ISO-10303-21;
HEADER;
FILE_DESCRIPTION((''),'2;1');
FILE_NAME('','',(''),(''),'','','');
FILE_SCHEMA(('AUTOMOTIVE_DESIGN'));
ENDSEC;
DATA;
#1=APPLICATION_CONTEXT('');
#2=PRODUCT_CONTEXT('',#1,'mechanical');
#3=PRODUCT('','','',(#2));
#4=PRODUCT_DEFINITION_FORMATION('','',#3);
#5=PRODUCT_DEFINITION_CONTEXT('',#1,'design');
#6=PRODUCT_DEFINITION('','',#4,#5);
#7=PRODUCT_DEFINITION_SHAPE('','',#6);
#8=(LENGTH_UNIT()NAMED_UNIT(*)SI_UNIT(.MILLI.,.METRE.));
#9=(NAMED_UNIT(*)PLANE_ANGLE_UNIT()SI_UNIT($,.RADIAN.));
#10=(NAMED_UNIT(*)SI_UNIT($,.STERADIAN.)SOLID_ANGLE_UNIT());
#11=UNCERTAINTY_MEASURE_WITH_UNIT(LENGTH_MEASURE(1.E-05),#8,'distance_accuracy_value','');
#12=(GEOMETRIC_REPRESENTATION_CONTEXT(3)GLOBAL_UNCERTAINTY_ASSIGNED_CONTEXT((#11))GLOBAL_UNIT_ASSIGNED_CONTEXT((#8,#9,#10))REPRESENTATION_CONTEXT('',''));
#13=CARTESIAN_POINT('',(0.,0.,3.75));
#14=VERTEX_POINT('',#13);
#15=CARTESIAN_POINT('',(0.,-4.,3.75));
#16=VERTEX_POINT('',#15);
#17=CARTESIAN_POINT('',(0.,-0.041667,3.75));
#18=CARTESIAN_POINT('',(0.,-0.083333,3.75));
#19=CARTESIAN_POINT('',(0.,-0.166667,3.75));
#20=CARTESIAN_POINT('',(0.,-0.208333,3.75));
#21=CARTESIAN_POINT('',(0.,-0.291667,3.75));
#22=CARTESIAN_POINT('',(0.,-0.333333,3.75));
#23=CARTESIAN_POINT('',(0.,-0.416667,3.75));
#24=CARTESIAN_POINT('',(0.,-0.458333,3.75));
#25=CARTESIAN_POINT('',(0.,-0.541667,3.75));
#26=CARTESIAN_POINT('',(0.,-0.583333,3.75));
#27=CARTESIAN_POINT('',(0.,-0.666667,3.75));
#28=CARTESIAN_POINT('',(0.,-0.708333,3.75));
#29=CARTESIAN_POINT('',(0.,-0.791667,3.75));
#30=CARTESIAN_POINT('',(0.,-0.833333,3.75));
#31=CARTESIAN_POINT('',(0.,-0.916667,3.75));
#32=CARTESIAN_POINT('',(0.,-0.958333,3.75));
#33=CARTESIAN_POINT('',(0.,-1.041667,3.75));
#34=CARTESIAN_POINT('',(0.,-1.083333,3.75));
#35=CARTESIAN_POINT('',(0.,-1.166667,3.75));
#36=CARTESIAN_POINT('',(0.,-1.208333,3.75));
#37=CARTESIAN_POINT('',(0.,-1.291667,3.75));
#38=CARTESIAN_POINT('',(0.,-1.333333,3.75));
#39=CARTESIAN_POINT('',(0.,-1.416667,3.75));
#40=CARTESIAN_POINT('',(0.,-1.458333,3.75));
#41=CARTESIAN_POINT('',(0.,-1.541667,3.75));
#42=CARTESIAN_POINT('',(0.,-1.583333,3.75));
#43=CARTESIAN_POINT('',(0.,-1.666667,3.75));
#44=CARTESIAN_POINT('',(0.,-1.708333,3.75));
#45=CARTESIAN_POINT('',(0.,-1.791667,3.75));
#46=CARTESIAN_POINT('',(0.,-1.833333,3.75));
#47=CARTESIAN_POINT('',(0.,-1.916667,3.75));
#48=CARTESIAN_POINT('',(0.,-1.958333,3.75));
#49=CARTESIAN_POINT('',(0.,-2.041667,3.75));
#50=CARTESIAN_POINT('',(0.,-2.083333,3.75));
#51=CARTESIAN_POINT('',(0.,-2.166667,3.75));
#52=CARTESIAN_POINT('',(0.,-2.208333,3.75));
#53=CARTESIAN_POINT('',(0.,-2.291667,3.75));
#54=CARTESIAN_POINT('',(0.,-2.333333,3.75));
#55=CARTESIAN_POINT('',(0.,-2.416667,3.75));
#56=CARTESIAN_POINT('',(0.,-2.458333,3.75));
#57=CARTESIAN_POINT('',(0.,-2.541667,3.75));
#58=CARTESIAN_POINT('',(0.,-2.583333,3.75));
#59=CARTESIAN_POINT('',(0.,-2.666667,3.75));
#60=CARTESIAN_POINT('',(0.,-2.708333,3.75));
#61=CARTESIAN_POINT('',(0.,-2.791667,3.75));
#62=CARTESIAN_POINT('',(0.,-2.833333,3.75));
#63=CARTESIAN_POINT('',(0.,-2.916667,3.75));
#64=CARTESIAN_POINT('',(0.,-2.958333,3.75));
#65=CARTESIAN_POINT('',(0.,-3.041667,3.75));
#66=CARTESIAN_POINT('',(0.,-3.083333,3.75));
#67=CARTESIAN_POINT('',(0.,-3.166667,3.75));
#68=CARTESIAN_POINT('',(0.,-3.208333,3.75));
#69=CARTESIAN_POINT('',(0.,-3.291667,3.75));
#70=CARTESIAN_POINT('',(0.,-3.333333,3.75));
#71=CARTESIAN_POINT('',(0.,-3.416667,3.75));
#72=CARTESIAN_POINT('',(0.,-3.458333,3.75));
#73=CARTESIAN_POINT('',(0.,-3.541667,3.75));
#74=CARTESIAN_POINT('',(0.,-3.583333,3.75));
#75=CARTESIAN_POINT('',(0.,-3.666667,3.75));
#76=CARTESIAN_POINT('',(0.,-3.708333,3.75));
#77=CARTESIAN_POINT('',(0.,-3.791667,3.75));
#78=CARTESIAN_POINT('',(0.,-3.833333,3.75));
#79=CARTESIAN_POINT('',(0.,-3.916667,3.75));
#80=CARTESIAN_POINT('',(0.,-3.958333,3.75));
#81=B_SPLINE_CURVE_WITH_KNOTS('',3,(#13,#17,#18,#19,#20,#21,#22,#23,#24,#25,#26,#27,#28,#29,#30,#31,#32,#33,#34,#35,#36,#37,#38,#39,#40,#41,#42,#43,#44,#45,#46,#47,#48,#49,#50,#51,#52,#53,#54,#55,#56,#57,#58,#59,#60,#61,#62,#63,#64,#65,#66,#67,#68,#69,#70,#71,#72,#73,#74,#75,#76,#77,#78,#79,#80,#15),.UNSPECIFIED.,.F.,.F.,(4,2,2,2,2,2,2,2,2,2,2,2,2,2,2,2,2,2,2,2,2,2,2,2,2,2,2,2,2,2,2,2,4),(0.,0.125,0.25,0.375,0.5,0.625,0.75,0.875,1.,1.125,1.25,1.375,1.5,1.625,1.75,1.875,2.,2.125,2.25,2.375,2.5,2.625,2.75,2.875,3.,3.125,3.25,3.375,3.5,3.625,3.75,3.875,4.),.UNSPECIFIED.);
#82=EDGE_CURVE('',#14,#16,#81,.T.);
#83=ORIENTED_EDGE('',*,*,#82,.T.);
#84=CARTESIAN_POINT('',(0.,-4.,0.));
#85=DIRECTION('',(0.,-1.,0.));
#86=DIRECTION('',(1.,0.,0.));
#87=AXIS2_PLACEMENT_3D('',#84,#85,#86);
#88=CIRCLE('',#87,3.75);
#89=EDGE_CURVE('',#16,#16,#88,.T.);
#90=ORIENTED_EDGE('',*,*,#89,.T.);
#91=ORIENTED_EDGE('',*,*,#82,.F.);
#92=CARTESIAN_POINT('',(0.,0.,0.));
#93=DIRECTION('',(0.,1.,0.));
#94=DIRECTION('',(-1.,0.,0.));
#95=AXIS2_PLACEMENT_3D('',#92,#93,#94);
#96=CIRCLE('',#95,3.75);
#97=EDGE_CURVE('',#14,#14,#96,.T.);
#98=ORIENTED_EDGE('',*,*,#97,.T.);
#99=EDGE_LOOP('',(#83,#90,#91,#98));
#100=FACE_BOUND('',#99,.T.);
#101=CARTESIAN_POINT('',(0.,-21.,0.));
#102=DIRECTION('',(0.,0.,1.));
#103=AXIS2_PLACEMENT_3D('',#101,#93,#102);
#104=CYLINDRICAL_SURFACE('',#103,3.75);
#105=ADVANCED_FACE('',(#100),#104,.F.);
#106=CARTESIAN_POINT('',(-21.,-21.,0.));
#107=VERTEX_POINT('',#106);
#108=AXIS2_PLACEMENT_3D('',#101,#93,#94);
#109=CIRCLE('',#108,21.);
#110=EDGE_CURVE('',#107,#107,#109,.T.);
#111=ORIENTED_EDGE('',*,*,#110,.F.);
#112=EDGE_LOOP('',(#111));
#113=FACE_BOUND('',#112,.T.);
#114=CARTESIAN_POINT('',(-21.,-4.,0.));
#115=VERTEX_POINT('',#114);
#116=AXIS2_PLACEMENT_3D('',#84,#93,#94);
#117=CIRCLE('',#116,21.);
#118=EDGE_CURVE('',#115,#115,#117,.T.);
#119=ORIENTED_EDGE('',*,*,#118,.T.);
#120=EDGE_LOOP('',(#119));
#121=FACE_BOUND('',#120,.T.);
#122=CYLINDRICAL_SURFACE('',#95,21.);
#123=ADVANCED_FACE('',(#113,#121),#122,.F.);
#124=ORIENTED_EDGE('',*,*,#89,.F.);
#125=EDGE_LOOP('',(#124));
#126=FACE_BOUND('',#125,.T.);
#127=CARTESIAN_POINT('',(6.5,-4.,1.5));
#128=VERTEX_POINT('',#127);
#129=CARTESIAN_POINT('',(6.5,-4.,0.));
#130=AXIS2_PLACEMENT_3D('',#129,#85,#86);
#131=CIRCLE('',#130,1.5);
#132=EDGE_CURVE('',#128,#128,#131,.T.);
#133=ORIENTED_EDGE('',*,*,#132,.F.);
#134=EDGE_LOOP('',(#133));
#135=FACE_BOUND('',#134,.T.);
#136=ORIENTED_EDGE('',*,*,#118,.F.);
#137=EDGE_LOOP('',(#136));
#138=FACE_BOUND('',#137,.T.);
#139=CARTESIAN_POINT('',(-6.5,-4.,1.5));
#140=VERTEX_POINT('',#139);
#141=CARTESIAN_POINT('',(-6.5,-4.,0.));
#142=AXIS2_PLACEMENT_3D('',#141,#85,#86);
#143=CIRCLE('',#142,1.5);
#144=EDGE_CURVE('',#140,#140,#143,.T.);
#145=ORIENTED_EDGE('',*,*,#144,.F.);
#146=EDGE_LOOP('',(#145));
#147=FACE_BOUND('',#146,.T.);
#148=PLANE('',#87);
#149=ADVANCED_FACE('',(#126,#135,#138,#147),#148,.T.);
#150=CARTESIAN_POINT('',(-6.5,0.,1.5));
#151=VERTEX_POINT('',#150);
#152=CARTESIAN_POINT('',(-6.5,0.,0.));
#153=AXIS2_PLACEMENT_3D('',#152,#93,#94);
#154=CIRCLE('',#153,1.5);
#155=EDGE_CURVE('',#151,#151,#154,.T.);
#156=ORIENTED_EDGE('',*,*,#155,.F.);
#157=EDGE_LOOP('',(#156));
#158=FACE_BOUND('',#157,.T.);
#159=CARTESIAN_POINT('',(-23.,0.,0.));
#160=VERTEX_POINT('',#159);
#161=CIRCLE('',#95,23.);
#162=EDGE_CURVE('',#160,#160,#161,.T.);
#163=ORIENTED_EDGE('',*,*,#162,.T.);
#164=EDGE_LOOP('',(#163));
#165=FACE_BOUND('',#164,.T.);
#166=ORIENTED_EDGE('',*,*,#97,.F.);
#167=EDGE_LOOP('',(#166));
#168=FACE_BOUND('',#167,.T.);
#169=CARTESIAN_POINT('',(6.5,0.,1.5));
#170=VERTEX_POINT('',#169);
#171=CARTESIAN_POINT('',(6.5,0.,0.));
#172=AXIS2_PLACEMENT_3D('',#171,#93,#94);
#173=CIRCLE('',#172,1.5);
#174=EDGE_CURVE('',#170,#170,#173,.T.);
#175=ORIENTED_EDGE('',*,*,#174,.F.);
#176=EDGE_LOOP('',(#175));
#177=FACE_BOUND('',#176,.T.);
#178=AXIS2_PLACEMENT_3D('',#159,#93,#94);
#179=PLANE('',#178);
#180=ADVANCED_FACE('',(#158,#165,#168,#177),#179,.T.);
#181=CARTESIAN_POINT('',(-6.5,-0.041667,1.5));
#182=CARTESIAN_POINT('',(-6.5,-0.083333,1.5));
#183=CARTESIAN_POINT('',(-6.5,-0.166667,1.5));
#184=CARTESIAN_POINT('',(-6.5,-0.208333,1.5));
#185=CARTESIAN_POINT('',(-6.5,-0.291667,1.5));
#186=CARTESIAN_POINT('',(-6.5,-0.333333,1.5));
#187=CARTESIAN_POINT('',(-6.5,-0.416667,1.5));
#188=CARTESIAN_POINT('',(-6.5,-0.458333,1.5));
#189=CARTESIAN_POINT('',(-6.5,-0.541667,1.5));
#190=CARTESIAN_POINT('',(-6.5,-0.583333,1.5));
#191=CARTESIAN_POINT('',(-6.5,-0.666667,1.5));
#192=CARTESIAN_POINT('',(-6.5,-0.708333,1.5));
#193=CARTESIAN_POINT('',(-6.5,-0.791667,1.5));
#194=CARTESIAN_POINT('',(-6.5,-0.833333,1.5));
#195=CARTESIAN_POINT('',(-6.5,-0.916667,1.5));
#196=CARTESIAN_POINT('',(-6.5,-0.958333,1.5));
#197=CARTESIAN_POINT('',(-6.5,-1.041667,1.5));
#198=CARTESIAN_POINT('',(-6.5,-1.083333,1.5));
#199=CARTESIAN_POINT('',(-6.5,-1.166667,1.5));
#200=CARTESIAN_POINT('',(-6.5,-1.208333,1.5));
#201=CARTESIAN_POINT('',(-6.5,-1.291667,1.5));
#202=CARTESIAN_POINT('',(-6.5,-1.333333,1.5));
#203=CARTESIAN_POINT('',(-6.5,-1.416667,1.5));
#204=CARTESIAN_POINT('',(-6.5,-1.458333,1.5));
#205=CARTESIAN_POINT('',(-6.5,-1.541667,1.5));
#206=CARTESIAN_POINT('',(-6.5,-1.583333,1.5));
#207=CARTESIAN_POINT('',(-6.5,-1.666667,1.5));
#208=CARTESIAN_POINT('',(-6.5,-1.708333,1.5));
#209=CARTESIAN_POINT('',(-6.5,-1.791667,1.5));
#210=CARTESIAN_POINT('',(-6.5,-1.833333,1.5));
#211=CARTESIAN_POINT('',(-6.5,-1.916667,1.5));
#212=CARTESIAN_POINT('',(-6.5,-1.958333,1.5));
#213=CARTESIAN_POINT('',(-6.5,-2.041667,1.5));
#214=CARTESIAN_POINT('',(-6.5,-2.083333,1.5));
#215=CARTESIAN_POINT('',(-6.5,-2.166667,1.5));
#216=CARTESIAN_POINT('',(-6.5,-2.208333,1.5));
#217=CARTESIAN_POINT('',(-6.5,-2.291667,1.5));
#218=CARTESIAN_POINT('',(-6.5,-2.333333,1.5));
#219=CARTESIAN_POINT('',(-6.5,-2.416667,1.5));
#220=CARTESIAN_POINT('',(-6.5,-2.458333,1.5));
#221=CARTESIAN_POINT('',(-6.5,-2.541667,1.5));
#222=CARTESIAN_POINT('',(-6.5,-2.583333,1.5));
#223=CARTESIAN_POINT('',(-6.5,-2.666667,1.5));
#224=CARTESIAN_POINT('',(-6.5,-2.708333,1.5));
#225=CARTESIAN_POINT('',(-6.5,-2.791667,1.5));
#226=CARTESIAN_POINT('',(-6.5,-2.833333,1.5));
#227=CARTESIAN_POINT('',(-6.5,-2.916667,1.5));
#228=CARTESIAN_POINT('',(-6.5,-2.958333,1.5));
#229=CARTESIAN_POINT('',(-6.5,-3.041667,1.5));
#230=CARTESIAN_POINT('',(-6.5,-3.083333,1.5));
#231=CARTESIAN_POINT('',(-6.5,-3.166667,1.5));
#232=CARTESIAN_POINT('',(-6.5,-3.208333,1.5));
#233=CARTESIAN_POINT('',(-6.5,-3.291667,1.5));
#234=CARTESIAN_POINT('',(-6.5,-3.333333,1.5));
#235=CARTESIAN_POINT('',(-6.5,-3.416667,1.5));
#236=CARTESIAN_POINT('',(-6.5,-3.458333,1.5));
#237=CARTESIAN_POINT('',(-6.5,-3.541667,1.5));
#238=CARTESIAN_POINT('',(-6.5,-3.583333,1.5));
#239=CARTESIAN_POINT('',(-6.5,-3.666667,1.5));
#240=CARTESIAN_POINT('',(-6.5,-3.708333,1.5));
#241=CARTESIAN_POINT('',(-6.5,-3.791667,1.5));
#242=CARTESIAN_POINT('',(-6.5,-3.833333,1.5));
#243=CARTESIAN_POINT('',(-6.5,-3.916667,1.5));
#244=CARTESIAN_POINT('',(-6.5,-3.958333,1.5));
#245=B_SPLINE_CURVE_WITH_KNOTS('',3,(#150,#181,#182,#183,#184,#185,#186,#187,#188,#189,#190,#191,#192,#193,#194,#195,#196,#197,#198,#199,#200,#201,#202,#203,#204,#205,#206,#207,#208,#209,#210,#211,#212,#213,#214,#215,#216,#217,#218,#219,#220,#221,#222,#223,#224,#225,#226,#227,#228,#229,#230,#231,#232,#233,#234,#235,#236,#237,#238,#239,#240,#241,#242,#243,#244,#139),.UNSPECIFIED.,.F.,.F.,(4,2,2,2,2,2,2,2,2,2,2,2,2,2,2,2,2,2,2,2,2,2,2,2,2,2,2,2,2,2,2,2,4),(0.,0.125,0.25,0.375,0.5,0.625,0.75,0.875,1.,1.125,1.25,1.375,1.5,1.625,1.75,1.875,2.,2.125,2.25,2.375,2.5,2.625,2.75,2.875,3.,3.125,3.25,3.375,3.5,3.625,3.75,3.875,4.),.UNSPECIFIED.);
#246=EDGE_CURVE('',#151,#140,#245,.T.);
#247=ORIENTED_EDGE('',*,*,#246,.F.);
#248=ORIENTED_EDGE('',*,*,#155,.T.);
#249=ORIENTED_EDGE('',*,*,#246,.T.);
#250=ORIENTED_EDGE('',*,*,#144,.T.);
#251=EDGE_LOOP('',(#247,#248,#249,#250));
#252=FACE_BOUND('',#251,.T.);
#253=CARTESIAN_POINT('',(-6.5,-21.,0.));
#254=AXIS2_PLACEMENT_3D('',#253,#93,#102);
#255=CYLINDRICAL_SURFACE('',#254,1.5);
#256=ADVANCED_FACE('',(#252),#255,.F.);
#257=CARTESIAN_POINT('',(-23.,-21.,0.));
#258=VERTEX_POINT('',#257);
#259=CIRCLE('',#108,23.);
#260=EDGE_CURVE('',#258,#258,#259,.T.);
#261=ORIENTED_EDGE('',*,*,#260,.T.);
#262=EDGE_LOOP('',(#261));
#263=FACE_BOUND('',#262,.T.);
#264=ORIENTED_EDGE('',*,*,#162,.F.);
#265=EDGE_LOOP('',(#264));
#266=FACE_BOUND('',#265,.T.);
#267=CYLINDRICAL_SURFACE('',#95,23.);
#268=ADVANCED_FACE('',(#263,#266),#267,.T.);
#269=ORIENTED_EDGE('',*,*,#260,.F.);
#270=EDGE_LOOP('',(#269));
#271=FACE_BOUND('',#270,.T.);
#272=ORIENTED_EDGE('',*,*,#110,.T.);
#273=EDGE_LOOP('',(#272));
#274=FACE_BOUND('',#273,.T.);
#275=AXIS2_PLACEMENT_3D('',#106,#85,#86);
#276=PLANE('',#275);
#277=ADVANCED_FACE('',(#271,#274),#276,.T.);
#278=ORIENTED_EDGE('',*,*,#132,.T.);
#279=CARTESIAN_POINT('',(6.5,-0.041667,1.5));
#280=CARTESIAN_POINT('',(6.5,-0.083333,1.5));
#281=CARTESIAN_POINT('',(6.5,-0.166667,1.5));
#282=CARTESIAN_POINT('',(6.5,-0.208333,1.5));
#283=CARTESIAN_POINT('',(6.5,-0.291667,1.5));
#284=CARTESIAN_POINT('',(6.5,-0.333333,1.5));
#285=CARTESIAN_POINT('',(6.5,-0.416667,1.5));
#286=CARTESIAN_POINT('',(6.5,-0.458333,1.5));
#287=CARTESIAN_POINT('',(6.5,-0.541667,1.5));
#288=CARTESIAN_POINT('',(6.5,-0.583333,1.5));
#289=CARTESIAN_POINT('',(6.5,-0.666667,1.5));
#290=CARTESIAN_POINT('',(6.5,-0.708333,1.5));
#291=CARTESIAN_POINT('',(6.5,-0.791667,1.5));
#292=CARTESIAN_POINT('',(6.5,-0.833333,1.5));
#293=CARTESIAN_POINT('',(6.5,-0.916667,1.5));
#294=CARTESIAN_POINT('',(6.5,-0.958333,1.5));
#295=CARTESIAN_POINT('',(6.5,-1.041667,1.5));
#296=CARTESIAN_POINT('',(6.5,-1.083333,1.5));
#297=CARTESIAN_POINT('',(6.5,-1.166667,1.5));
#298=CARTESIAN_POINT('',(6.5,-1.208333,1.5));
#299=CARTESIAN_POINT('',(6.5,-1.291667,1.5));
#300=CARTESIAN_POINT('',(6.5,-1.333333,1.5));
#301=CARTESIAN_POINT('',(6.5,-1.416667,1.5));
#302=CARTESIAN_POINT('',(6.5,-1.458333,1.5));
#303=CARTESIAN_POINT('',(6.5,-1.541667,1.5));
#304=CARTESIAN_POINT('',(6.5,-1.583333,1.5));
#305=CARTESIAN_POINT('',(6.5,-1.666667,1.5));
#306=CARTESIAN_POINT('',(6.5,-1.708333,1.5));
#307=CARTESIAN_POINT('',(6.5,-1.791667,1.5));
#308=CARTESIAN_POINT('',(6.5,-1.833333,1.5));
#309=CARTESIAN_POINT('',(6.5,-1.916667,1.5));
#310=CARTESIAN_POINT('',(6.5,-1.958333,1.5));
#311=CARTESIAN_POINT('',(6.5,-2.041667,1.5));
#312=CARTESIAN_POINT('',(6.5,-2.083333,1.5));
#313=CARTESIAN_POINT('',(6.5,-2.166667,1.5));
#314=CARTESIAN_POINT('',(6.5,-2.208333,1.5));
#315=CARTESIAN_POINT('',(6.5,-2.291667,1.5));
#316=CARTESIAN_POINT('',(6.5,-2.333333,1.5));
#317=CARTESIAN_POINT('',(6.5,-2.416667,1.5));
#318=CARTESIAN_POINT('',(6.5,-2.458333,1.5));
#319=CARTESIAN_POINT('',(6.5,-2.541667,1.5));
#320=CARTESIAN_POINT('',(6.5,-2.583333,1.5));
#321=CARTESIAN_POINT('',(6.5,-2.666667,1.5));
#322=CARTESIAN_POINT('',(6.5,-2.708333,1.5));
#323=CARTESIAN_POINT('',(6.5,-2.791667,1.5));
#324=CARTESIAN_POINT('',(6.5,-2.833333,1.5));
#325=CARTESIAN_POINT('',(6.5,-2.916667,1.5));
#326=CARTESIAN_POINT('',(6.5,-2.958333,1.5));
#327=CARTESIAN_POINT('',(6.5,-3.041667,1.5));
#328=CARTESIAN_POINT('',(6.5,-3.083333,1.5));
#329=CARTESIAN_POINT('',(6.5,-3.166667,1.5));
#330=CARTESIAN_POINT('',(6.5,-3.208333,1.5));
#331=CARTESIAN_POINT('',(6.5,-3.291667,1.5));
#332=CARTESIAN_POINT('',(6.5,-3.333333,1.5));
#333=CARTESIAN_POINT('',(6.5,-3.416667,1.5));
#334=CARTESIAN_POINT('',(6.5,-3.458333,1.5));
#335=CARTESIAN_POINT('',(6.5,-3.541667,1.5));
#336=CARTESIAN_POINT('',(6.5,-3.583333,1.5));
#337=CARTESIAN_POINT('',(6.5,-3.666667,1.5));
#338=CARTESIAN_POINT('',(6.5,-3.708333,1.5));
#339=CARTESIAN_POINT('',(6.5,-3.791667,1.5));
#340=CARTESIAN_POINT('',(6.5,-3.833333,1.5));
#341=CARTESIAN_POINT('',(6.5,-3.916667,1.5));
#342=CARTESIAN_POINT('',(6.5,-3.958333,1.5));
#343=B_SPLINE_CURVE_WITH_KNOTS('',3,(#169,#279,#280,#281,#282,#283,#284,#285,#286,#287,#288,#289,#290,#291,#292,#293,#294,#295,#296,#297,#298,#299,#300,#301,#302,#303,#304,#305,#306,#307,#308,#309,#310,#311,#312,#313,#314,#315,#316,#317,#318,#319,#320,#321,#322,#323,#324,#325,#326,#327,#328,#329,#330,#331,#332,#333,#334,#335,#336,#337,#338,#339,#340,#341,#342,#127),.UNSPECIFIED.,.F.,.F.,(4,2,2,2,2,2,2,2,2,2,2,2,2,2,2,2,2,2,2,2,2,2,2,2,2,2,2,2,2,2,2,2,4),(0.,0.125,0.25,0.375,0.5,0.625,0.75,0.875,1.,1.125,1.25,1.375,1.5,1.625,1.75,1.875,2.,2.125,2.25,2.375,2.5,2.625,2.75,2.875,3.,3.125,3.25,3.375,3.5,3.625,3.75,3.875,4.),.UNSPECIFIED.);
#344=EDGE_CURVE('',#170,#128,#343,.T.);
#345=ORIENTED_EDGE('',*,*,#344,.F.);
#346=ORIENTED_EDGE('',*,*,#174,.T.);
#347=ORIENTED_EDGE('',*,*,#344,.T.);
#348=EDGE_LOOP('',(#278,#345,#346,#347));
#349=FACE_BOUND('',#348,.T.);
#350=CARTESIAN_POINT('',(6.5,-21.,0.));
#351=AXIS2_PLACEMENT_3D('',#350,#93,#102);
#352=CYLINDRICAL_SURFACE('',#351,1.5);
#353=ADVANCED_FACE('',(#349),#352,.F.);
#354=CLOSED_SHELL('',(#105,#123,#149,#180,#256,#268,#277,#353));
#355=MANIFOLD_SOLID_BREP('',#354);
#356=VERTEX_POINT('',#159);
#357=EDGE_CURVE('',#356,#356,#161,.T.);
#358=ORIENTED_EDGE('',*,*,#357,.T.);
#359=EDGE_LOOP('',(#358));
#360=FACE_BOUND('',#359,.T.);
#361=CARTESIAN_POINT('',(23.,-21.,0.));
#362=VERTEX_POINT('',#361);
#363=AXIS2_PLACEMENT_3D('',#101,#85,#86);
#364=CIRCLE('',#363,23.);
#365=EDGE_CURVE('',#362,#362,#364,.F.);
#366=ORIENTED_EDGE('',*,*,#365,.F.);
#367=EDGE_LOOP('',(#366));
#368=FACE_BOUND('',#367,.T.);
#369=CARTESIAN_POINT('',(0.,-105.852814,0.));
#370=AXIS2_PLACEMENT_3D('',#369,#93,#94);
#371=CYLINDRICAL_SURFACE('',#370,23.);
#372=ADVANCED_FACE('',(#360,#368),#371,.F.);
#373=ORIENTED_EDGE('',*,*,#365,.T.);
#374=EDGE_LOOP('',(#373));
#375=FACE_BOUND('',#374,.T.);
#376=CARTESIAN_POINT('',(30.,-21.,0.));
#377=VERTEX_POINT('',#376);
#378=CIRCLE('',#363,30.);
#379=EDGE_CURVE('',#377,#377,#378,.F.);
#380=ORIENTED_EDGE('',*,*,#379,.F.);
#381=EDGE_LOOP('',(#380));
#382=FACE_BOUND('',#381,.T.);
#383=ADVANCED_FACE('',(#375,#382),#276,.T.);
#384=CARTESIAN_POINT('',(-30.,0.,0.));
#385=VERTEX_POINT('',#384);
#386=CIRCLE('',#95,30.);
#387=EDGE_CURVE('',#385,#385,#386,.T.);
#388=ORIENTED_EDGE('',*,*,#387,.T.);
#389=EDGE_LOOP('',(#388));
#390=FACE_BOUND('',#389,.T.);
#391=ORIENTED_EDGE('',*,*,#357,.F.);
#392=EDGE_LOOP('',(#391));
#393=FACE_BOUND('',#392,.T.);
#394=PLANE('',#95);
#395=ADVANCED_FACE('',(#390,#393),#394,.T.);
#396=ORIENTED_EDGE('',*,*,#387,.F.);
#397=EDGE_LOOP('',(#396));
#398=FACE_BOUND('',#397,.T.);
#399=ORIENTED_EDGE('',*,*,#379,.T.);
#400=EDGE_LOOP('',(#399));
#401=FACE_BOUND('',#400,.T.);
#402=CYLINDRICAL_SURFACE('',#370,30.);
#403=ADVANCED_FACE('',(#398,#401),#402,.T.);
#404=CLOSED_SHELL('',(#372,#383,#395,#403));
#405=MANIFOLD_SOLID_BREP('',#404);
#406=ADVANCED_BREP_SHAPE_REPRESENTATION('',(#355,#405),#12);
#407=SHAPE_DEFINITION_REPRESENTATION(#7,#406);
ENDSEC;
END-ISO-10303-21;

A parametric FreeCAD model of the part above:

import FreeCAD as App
import Part
import Sketcher
from FreeCAD import Vector

doc = App.newDocument("Part")
body = doc.addObject("PartDesign::Body", "Body")

# Sketch on XY plane
sketch1 = doc.addObject("Sketcher::SketchObject", "Sketch")
body.addObject(sketch1)
sketch1.AttachmentSupport = (doc.XY_Plane, [""])
sketch1.MapMode = "FlatFace"
sketch1.addGeometry([
    Part.LineSegment(Vector(0, -4, 0), Vector(0, 0, 0)),  # 0
    Part.LineSegment(Vector(0, 0, 0), Vector(-23, 0, 0)),  # 1
    Part.LineSegment(Vector(-23, 0, 0), Vector(-23, -21, 0)),  # 2
    Part.LineSegment(Vector(-23, -21, 0), Vector(-21, -21, 0)),  # 3
    Part.LineSegment(Vector(-21, -21, 0), Vector(-21, -4, 0)),  # 4
    Part.LineSegment(Vector(-21, -4, 0), Vector(0, -4, 0)),  # 5
], False)
sketch1.addConstraint([
    Sketcher.Constraint("Coincident", 0, 2, 1, 1),
    Sketcher.Constraint("Coincident", 1, 2, 2, 1),
    Sketcher.Constraint("Coincident", 2, 2, 3, 1),
    Sketcher.Constraint("Coincident", 3, 2, 4, 1),
    Sketcher.Constraint("Coincident", 4, 2, 5, 1),
    Sketcher.Constraint("Coincident", 5, 2, 0, 1),
    Sketcher.Constraint("Vertical", 0),
    Sketcher.Constraint("Horizontal", 1),
    Sketcher.Constraint("Vertical", 2),
    Sketcher.Constraint("Horizontal", 3),
    Sketcher.Constraint("Vertical", 4),
    Sketcher.Constraint("Horizontal", 5),
    Sketcher.Constraint("Coincident", 0, 2, -1, 1),
    Sketcher.Constraint("Equal", 5, 2),
    Sketcher.Constraint("DistanceX", 1, 2, 1, 1, 23.0),
    Sketcher.Constraint("DistanceX", 3, 1, 3, 2, 2.0),
    Sketcher.Constraint("DistanceY", 0, 1, 0, 2, 4.0),
])
revolution = doc.addObject("PartDesign::Revolution", "Revolution")
body.addObject(revolution)
revolution.Profile = sketch1
revolution.ReferenceAxis = (sketch1, ["V_Axis"])
revolution.Angle = 360

# Sketch on XZ plane
sketch2 = doc.addObject("Sketcher::SketchObject", "Sketch001")
body.addObject(sketch2)
sketch2.AttachmentSupport = (doc.XZ_Plane, [""])
sketch2.MapMode = "FlatFace"
sketch2.addGeometry([
    Part.Circle(Vector(0, 0, 0), Vector(0, 0, 1), 3.8),
    Part.Circle(Vector(-6.5, 0, 0), Vector(0, 0, 1), 1.5),
    Part.Circle(Vector(6.5, 0, 0), Vector(0, 0, 1), 1.5),
], False)
sketch2.addConstraint([
    Sketcher.Constraint("Coincident", 0, 3, -1, 1),
    Sketcher.Constraint("Equal", 1, 2),
    Sketcher.Constraint("Symmetric", 1, 3, 2, 3, -1, 1),
    Sketcher.Constraint("PointOnObject", 1, 3, -1),
    Sketcher.Constraint("Diameter", 1, 3.0),
    Sketcher.Constraint("Diameter", 0, 7.5),
    Sketcher.Constraint("DistanceX", 1, 3, 2, 3, 13.0),
])
pocket1 = doc.addObject("PartDesign::Pocket", "Pocket")
body.addObject(pocket1)
pocket1.Profile = sketch2
pocket1.Type = "ThroughAll"
pocket1.Midplane = True
body2 = doc.addObject("PartDesign::Body", "Body001")

# Sketch on XZ plane
sketch3 = doc.addObject("Sketcher::SketchObject", "Sketch002")
body2.addObject(sketch3)
sketch3.AttachmentSupport = (doc.getObject("XZ_Plane001"), [""])
sketch3.MapMode = "FlatFace"
sketch3.addGeometry([
    Part.Circle(Vector(0, 0, 0), Vector(0, 0, 1), 30),
    Part.Circle(Vector(0, 0, 0), Vector(0, 0, 1), 23),
], False)
sketch3.addConstraint([
    Sketcher.Constraint("Coincident", 0, 3, -1, 1),
    Sketcher.Constraint("Coincident", 1, 3, -1, 1),
    Sketcher.Constraint("Diameter", 0, 60.0),
    Sketcher.Constraint("Diameter", 1, 46.0),
])
pad1 = doc.addObject("PartDesign::Pad", "Pad")
body2.addObject(pad1)
pad1.Profile = sketch3
pad1.Length = 21

doc.recompute()
